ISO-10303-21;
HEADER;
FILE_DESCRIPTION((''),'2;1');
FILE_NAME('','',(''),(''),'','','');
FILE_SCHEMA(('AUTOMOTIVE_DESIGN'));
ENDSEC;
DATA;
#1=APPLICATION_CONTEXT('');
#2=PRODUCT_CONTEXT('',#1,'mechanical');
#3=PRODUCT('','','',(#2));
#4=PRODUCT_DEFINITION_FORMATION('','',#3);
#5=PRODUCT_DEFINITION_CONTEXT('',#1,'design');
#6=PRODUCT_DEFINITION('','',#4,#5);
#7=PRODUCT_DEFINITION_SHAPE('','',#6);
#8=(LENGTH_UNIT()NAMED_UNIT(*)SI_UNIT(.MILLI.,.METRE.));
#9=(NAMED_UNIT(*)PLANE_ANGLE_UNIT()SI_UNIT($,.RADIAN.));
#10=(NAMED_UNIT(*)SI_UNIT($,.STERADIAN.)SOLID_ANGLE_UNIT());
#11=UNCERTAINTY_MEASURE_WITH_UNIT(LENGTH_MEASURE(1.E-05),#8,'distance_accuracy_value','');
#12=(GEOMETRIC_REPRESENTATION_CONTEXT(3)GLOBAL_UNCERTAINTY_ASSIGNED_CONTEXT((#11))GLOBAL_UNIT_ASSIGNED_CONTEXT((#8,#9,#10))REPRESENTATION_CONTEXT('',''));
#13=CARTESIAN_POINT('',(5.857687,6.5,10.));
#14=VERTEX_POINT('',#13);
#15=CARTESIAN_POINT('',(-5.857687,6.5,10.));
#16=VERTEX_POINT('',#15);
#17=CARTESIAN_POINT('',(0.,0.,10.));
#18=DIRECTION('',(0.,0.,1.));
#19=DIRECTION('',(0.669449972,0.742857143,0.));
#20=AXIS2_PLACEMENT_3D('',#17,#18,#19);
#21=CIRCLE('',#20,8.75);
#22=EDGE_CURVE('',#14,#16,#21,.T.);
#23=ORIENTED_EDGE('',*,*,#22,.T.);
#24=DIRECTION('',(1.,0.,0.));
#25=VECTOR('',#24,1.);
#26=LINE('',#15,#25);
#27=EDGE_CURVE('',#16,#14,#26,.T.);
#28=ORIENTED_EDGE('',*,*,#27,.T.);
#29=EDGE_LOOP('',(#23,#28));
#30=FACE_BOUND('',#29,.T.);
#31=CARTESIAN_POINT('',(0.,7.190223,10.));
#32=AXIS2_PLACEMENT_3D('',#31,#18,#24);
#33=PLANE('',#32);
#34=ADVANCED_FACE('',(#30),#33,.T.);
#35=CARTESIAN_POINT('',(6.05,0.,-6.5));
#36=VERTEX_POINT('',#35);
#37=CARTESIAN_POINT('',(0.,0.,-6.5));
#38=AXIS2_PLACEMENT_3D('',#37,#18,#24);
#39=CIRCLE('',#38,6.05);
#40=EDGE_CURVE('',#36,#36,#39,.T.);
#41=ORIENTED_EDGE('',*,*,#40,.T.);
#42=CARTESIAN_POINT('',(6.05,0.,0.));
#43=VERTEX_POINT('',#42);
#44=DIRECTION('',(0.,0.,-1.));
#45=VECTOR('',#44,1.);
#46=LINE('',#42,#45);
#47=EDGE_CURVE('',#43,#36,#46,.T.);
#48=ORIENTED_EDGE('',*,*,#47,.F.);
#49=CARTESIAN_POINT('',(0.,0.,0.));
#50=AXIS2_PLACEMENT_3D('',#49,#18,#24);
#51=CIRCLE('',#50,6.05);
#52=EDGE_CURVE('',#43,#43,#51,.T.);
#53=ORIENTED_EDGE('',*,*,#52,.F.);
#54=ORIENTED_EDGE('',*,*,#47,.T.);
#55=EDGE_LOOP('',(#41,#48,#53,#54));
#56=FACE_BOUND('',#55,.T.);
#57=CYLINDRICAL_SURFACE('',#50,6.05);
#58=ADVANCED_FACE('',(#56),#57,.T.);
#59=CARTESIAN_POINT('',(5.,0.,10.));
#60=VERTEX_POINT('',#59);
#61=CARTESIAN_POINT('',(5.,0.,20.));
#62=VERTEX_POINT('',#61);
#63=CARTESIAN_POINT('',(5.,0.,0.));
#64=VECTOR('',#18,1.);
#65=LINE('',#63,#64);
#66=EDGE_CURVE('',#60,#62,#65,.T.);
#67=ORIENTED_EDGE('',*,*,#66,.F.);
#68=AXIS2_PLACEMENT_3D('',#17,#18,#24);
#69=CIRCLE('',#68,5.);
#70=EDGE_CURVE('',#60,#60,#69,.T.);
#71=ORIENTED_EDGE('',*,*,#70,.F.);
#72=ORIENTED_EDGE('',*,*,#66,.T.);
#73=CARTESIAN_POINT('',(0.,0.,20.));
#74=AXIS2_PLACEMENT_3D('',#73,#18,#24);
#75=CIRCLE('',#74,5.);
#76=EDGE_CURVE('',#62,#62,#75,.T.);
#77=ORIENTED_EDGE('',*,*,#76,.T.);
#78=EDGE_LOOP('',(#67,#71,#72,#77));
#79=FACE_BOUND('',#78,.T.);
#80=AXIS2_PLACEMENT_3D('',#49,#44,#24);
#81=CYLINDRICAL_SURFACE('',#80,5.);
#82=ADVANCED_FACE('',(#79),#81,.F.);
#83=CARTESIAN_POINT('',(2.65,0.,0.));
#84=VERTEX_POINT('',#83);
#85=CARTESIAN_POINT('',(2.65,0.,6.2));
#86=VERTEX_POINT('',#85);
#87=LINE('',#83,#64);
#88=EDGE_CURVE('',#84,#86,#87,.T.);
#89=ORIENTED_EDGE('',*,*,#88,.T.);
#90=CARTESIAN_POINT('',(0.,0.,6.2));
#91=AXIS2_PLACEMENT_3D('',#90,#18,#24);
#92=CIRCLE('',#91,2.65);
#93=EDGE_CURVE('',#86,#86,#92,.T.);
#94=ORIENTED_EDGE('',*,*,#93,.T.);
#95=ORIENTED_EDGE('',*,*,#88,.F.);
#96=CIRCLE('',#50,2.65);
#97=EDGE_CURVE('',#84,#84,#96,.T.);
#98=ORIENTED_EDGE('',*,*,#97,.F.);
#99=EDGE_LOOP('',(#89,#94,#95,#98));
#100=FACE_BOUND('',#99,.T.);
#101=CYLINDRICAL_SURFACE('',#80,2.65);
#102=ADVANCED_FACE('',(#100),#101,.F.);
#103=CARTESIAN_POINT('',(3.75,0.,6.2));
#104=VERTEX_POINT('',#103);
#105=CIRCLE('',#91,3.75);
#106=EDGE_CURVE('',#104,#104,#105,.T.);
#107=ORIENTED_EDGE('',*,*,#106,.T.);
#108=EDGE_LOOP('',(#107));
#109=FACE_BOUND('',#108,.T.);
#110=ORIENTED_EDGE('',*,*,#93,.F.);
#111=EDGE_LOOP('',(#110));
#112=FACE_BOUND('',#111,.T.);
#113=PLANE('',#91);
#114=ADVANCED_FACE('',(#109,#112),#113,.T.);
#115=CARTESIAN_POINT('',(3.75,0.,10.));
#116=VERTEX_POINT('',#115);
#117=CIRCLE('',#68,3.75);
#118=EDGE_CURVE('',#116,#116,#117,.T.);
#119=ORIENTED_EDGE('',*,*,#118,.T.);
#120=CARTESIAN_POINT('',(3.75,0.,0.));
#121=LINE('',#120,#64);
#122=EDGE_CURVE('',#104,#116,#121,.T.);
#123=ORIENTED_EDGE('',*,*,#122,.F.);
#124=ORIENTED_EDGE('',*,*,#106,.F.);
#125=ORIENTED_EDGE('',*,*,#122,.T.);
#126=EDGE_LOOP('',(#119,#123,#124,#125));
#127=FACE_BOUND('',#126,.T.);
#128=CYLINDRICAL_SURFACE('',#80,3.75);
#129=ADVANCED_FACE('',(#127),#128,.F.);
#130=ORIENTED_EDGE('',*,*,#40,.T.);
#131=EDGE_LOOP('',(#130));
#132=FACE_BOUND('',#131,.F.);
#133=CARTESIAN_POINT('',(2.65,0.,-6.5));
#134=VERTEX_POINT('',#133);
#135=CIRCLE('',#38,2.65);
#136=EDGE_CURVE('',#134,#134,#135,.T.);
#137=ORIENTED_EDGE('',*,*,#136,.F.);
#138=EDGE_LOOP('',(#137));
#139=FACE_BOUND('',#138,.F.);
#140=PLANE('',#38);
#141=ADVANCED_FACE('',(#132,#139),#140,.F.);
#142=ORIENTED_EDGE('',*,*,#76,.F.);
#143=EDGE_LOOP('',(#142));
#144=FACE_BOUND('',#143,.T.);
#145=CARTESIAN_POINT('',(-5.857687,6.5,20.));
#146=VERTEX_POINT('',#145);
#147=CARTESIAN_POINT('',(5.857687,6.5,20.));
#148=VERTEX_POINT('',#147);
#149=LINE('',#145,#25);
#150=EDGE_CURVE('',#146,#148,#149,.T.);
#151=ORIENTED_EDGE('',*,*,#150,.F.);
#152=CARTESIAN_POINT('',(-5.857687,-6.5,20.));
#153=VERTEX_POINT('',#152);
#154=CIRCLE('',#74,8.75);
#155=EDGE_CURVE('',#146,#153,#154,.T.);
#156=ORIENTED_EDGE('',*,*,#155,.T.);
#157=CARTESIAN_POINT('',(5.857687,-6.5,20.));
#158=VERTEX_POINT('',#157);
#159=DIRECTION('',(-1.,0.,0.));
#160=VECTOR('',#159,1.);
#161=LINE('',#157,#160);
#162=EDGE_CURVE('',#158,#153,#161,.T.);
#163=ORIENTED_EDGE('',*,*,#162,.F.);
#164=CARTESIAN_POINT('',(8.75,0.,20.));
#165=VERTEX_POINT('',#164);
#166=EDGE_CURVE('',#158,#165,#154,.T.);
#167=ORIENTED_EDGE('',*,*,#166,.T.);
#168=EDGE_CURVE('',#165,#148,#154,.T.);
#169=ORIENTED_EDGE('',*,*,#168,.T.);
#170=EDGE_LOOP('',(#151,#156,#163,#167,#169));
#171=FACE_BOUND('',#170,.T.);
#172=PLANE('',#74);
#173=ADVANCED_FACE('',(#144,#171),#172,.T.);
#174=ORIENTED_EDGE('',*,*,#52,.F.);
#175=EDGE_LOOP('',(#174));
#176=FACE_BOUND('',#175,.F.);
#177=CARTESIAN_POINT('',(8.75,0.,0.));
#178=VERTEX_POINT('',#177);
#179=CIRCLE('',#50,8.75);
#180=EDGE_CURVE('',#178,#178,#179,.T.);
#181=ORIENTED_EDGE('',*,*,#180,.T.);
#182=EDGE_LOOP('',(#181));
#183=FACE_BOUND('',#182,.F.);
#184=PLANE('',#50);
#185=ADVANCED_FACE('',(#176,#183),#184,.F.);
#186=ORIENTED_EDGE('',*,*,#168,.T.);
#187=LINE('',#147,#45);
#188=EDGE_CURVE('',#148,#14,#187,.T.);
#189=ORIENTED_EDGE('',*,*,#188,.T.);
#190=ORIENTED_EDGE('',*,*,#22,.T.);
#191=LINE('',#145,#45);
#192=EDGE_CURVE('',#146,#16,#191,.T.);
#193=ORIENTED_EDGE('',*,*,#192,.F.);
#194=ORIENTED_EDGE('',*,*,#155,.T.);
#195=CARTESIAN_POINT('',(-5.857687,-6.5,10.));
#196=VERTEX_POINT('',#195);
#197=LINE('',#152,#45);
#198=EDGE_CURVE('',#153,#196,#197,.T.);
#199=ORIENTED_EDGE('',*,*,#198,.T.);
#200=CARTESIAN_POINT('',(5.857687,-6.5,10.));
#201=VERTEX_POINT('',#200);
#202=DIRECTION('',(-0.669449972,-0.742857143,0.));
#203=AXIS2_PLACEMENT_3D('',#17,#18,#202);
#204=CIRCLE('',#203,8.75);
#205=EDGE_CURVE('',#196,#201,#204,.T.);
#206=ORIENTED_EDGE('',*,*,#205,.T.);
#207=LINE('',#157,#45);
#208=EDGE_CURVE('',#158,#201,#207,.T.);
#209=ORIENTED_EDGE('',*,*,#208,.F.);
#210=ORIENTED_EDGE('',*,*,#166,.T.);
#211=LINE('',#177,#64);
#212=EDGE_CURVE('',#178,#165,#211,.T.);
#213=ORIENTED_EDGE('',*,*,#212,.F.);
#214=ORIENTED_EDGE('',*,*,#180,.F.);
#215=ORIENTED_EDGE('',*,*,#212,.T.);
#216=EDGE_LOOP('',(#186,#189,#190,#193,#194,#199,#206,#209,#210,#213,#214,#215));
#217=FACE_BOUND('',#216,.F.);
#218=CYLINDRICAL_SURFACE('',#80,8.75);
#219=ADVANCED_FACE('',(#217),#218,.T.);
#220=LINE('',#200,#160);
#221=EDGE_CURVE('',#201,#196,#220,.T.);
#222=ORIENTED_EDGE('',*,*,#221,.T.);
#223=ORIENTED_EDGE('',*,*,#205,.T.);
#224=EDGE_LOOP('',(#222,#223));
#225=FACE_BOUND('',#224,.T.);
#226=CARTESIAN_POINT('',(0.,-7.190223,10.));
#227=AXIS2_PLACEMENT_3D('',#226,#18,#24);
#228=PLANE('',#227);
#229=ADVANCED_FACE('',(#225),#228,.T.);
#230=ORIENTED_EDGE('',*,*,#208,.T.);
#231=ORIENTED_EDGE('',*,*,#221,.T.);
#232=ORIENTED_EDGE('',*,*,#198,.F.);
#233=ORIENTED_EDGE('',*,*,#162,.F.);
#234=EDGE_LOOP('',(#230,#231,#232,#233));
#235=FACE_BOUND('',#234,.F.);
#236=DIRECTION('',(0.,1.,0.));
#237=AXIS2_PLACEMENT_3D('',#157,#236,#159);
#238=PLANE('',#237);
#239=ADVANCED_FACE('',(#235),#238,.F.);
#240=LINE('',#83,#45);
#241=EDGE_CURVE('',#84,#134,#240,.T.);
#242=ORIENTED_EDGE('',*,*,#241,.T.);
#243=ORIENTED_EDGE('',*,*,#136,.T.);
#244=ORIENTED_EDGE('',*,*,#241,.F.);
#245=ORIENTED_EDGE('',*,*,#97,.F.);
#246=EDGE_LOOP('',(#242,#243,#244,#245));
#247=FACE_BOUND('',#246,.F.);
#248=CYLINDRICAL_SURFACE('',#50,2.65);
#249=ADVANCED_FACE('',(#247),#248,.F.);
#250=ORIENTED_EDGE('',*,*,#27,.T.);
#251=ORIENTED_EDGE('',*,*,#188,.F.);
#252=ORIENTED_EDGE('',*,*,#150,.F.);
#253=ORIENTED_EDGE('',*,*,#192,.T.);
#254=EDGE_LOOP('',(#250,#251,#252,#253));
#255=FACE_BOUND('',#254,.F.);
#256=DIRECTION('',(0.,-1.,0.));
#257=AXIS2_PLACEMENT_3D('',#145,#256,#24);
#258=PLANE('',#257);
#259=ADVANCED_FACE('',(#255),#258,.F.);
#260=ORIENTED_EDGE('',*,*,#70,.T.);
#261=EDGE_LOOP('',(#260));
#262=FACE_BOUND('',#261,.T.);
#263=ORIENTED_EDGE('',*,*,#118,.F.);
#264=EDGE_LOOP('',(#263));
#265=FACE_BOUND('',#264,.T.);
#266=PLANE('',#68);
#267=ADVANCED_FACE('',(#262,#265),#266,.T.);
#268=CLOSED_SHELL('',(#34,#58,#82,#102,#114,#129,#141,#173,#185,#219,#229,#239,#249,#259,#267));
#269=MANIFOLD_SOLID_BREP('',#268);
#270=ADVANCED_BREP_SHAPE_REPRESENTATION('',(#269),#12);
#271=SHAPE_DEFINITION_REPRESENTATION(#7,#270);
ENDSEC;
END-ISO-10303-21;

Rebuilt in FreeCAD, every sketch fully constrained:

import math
import FreeCAD as App
import Part
import Sketcher

V = App.Vector
Q = App.Units.Quantity

doc = App.newDocument("Part")
body = doc.addObject("PartDesign::Body", "Body")

sketch1 = body.newObject("Sketcher::SketchObject", "Sketch")
sketch1.AttachmentSupport = (doc.getObject("XY_Plane"), [""])
sketch1.MapMode = "FlatFace"
sketch1.addGeometry(Part.Circle(V(0, 0, 0), V(0, 0, 1), 9), False)
sketch1.addGeometry(Part.Circle(V(0, 0, 0), V(0, 0, 1), 5), False)
sketch1.addConstraint(Sketcher.Constraint("Coincident", 0, 3, -1, 1))
sketch1.addConstraint(Sketcher.Constraint("Coincident", 1, 3, -1, 1))
sketch1.addConstraint(Sketcher.Constraint("Diameter", 1, Q("10 mm")))
sketch1.addConstraint(Sketcher.Constraint("Diameter", 0, Q("17.5 mm")))
pad1 = body.newObject("PartDesign::Pad", "Pad")
pad1.Profile = sketch1
pad1.Length = 20

sketch2 = body.newObject("Sketcher::SketchObject", "Sketch001")
sketch2.AttachmentSupport = (doc.getObject("XY_Plane"), [""])
sketch2.MapMode = "FlatFace"
sketch2.AttachmentOffset = App.Placement(V(0, 0, 20), App.Rotation())
sketch2.addGeometry(Part.ArcOfCircle(Part.Circle(V(0, 0, 0), V(0, 0, 1), 9), math.radians(-132), math.radians(-48)), False)
sketch2.addGeometry(Part.LineSegment(V(6, -6, 0), V(-6, -6, 0)), False)
sketch2.addGeometry(Part.LineSegment(V(-6, 6, 0), V(6, 6, 0)), False)
sketch2.addGeometry(Part.ArcOfCircle(Part.Circle(V(0, 0, 0), V(0, 0, 1), 9), math.radians(48), math.radians(132)), False)
sketch2.addConstraint(Sketcher.Constraint("Coincident", 0, 1, 1, 2))
sketch2.addConstraint(Sketcher.Constraint("Coincident", 1, 1, 0, 2))
sketch2.addConstraint(Sketcher.Constraint("Coincident", 2, 1, 3, 2))
sketch2.addConstraint(Sketcher.Constraint("Coincident", 3, 1, 2, 2))
sketch2.addConstraint(Sketcher.Constraint("Horizontal", 1))
sketch2.addConstraint(Sketcher.Constraint("Horizontal", 2))
sketch2.addConstraint(Sketcher.Constraint("Coincident", 0, 3, -1, 1))
sketch2.addConstraint(Sketcher.Constraint("Coincident", 3, 3, -1, 1))
sketch2.addConstraint(Sketcher.Constraint("Equal", 0, 3))
sketch2.addConstraint(Sketcher.Constraint("Vertical", 0, 1, 2, 1))
sketch2.addConstraint(Sketcher.Constraint("Radius", 0, Q("8.75 mm")))
sketch2.addConstraint(Sketcher.Constraint("DistanceY", 0, 1, 2, 1, Q("13 mm")))
pocket1 = body.newObject("PartDesign::Pocket", "Pocket")
pocket1.Profile = sketch2
pocket1.Length = 10
body2 = doc.addObject("PartDesign::Body", "Body001")

sketch3 = body2.newObject("Sketcher::SketchObject", "Sketch002")
sketch3.AttachmentSupport = (doc.getObject("XY_Plane001"), [""])
sketch3.MapMode = "FlatFace"
sketch3.addGeometry(Part.Circle(V(0, 0, 0), V(0, 0, 1), 5), False)
sketch3.addGeometry(Part.Circle(V(0, 0, 0), V(0, 0, 1), 3.8), False)
sketch3.addConstraint(Sketcher.Constraint("Coincident", 0, 3, -1, 1))
sketch3.addConstraint(Sketcher.Constraint("Coincident", 1, 3, -1, 1))
sketch3.addConstraint(Sketcher.Constraint("Diameter", 0, Q("10 mm")))
sketch3.addConstraint(Sketcher.Constraint("Diameter", 1, Q("7.5 mm")))
pad2 = body2.newObject("PartDesign::Pad", "Pad001")
pad2.Profile = sketch3
pad2.Length = 10

sketch4 = body2.newObject("Sketcher::SketchObject", "Sketch003")
sketch4.AttachmentSupport = (doc.getObject("XY_Plane001"), [""])
sketch4.MapMode = "FlatFace"
sketch4.addGeometry(Part.Circle(V(0, 0, 0), V(0, 0, 1), 3.8), False)
sketch4.addGeometry(Part.Circle(V(0, 0, 0), V(0, 0, 1), 2.6), False)
sketch4.addConstraint(Sketcher.Constraint("Coincident", 0, 3, -1, 1))
sketch4.addConstraint(Sketcher.Constraint("Coincident", 1, 3, -1, 1))
sketch4.addConstraint(Sketcher.Constraint("Diameter", 0, Q("7.5 mm")))
sketch4.addConstraint(Sketcher.Constraint("Diameter", 1, Q("5.3 mm")))
pad3 = body2.newObject("PartDesign::Pad", "Pad002")
pad3.Profile = sketch4
pad3.Length = 6.2
doc.recompute()

boolean = body.newObject("PartDesign::Boolean", "Boolean")
boolean.Type = "Fuse"
boolean.addObjects([body2])

sketch5 = body.newObject("Sketcher::SketchObject", "Sketch004")
sketch5.AttachmentSupport = (doc.getObject("XY_Plane"), [""])
sketch5.MapMode = "FlatFace"
sketch5.addGeometry(Part.Circle(V(0, 0, 0), V(0, 0, 1), 6), False)
sketch5.addGeometry(Part.Circle(V(0, 0, 0), V(0, 0, 1), 2.6), False)
sketch5.addConstraint(Sketcher.Constraint("Coincident", 0, 3, -1, 1))
sketch5.addConstraint(Sketcher.Constraint("Coincident", 1, 3, -1, 1))
sketch5.addConstraint(Sketcher.Constraint("Diameter", 0, Q("12.1 mm")))
sketch5.addConstraint(Sketcher.Constraint("Diameter", 1, Q("5.3 mm")))
pad4 = body.newObject("PartDesign::Pad", "Pad003")
pad4.Profile = sketch5
pad4.Length = 6.5
pad4.Reversed = True

doc.recompute()
